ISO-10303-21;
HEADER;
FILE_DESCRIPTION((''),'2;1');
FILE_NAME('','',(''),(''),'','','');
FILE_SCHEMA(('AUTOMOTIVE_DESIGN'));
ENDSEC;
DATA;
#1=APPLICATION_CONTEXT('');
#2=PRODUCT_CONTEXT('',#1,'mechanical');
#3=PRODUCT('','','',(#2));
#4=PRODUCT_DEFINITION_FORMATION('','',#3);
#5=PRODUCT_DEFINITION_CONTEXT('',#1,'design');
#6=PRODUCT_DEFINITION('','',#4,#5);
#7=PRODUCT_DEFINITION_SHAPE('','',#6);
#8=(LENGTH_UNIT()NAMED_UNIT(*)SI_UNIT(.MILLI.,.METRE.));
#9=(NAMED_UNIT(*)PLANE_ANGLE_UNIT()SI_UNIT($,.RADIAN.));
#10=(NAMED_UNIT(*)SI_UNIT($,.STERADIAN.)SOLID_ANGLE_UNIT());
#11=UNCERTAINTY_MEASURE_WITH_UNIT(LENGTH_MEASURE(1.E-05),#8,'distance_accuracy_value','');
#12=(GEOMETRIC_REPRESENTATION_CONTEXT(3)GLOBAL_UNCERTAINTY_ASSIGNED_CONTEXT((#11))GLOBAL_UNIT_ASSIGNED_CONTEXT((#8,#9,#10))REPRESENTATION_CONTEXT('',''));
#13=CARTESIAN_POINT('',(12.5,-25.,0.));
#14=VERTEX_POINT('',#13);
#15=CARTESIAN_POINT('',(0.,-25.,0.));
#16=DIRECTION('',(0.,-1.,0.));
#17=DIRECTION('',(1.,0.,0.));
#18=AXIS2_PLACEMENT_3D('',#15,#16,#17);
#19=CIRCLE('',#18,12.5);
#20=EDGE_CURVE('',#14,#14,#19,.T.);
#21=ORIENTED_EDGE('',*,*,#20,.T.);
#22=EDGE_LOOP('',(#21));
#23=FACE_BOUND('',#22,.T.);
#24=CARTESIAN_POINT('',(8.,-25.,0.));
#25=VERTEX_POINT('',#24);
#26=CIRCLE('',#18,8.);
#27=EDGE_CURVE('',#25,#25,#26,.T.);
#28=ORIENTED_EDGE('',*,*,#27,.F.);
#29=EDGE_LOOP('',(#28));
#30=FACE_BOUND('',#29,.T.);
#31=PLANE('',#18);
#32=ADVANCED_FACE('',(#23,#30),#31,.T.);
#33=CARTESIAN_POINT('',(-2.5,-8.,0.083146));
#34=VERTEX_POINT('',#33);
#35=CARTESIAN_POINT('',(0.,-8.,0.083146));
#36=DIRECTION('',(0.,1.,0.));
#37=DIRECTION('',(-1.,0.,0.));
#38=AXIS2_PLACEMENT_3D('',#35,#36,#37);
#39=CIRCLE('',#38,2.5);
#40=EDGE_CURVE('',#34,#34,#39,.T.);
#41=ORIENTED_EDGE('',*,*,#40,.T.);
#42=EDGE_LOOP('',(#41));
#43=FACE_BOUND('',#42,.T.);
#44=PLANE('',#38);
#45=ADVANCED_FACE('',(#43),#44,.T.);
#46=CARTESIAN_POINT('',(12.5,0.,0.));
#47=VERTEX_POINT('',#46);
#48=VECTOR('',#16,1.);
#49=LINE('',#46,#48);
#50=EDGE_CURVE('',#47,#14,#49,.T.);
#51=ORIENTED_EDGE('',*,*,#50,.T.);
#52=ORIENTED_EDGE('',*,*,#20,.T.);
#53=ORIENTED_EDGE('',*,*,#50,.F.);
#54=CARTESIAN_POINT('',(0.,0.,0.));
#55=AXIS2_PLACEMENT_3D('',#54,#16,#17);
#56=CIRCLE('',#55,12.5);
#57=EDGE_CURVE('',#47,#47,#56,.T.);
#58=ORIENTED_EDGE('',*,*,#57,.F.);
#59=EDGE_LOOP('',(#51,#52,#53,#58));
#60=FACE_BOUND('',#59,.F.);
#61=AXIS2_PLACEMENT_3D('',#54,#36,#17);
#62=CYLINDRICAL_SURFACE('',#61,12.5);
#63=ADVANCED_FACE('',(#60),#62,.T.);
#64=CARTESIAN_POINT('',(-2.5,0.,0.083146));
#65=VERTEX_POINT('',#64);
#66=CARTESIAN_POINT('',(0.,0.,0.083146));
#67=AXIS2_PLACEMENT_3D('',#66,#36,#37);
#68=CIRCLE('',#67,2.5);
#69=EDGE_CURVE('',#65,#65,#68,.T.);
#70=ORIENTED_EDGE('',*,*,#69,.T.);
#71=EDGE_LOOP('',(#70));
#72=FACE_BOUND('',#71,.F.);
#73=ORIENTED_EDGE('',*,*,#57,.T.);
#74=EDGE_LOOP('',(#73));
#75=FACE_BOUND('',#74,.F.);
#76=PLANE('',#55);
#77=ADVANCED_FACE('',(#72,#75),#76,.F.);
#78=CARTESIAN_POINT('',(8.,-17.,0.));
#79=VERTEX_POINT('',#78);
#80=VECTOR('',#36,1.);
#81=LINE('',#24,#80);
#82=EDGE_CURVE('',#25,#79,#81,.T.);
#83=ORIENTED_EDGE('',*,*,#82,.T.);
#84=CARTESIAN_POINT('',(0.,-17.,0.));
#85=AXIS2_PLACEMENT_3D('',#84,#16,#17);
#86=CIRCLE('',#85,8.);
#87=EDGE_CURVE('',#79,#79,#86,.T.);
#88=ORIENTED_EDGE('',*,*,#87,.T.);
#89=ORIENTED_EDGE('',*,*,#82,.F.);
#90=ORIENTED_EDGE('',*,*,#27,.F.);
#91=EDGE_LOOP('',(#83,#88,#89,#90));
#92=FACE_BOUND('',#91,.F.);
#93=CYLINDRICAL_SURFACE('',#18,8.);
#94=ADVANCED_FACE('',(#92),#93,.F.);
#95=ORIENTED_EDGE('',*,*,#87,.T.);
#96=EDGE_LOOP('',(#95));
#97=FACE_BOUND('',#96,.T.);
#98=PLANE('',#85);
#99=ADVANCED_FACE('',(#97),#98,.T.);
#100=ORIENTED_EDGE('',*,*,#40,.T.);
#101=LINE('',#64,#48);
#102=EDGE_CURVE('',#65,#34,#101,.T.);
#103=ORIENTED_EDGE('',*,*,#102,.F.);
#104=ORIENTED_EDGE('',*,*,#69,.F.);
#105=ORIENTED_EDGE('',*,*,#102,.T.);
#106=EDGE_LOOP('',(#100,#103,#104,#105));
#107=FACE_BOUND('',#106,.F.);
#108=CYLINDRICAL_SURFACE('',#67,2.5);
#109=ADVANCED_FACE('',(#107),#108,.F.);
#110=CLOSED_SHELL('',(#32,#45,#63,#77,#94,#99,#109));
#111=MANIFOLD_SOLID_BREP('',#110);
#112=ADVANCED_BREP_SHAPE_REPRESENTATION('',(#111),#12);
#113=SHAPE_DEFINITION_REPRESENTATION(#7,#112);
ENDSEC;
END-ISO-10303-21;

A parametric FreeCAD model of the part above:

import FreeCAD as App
import Part
import Sketcher

V = App.Vector

doc = App.newDocument("Part")
body = doc.addObject("PartDesign::Body", "Body")

# Sketch on XZ plane
sketch1 = body.newObject("Sketcher::SketchObject", "Sketch")
sketch1.AttachmentSupport = (doc.getObject("XZ_Plane"), [""])
sketch1.MapMode = "FlatFace"
sketch1.addGeometry(Part.Circle(V(0, 0, 0), V(0, 0, 1), 12), False)
sketch1.addConstraint([
    Sketcher.Constraint("Coincident", 0, 3, -1, 1),
    Sketcher.Constraint("Diameter", 0, 25.0),
])
pad1 = body.newObject("PartDesign::Pad", "Pad")
pad1.Profile = sketch1
pad1.Length = 25

# Sketch on XZ plane
sketch2 = body.newObject("Sketcher::SketchObject", "Sketch001")
sketch2.AttachmentSupport = (doc.getObject("XZ_Plane"), [""])
sketch2.MapMode = "FlatFace"
sketch2.addGeometry(Part.Circle(V(0, 0.1, 0), V(0, 0, 1), 2.5), False)
sketch2.addConstraint([
    Sketcher.Constraint("PointOnObject", 0, 3, -2),
    Sketcher.Constraint("Diameter", 0, 5.0),
    Sketcher.Constraint("DistanceY", -1, 1, 0, 3, 0.083146),
])
pocket1 = body.newObject("PartDesign::Pocket", "Pocket")
pocket1.Profile = sketch2
pocket1.Length = 8
pocket1.Reversed = True

# Sketch on XZ plane
sketch3 = body.newObject("Sketcher::SketchObject", "Sketch002")
sketch3.AttachmentSupport = (doc.getObject("XZ_Plane"), [""])
sketch3.MapMode = "FlatFace"
sketch3.AttachmentOffset = App.Placement(V(0, 0, 25), App.Rotation())
sketch3.addGeometry(Part.Circle(V(0, 0, 0), V(0, 0, 1), 8), False)
sketch3.addConstraint([
    Sketcher.Constraint("Coincident", 0, 3, -1, 1),
    Sketcher.Constraint("Diameter", 0, 16.0),
])
pocket2 = body.newObject("PartDesign::Pocket", "Pocket001")
pocket2.Profile = sketch3
pocket2.Length = 8

doc.recompute()
